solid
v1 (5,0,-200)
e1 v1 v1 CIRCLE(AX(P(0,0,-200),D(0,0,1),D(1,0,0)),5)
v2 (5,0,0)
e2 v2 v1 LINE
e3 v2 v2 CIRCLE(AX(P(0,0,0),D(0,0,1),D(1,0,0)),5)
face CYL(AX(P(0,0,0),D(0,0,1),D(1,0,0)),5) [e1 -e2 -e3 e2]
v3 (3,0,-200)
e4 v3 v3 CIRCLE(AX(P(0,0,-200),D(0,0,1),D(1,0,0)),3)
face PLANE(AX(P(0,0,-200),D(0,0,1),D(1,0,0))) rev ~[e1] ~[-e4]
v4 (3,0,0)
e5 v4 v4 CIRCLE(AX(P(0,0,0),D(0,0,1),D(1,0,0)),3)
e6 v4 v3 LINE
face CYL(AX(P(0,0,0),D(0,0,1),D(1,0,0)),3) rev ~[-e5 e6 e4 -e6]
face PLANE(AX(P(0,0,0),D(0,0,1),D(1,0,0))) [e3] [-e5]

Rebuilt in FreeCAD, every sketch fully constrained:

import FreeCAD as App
import Part
import Sketcher
from FreeCAD import Vector

doc = App.newDocument("Part")
body = doc.addObject("PartDesign::Body", "Body")

sketch1 = doc.addObject("Sketcher::SketchObject", "Sketch")
body.addObject(sketch1)
sketch1.AttachmentSupport = (doc.XY_Plane, [""])
sketch1.MapMode = "FlatFace"
sketch1.addGeometry(Part.Circle(Vector(0, 0, 0), Vector(0, 0, 1), 5), False)
sketch1.addGeometry(Part.Circle(Vector(0, 0, 0), Vector(0, 0, 1), 3), False)
sketch1.addConstraint(Sketcher.Constraint("Coincident", 0, 3, -1, 1))
sketch1.addConstraint(Sketcher.Constraint("Coincident", 1, 3, -1, 1))
sketch1.addConstraint(Sketcher.Constraint("Diameter", 0, 10.0))
sketch1.addConstraint(Sketcher.Constraint("Diameter", 1, 6.0))
pad1 = doc.addObject("PartDesign::Pad", "Pad")
body.addObject(pad1)
pad1.Profile = sketch1
pad1.Length = 200
pad1.Reversed = True

doc.recompute()
